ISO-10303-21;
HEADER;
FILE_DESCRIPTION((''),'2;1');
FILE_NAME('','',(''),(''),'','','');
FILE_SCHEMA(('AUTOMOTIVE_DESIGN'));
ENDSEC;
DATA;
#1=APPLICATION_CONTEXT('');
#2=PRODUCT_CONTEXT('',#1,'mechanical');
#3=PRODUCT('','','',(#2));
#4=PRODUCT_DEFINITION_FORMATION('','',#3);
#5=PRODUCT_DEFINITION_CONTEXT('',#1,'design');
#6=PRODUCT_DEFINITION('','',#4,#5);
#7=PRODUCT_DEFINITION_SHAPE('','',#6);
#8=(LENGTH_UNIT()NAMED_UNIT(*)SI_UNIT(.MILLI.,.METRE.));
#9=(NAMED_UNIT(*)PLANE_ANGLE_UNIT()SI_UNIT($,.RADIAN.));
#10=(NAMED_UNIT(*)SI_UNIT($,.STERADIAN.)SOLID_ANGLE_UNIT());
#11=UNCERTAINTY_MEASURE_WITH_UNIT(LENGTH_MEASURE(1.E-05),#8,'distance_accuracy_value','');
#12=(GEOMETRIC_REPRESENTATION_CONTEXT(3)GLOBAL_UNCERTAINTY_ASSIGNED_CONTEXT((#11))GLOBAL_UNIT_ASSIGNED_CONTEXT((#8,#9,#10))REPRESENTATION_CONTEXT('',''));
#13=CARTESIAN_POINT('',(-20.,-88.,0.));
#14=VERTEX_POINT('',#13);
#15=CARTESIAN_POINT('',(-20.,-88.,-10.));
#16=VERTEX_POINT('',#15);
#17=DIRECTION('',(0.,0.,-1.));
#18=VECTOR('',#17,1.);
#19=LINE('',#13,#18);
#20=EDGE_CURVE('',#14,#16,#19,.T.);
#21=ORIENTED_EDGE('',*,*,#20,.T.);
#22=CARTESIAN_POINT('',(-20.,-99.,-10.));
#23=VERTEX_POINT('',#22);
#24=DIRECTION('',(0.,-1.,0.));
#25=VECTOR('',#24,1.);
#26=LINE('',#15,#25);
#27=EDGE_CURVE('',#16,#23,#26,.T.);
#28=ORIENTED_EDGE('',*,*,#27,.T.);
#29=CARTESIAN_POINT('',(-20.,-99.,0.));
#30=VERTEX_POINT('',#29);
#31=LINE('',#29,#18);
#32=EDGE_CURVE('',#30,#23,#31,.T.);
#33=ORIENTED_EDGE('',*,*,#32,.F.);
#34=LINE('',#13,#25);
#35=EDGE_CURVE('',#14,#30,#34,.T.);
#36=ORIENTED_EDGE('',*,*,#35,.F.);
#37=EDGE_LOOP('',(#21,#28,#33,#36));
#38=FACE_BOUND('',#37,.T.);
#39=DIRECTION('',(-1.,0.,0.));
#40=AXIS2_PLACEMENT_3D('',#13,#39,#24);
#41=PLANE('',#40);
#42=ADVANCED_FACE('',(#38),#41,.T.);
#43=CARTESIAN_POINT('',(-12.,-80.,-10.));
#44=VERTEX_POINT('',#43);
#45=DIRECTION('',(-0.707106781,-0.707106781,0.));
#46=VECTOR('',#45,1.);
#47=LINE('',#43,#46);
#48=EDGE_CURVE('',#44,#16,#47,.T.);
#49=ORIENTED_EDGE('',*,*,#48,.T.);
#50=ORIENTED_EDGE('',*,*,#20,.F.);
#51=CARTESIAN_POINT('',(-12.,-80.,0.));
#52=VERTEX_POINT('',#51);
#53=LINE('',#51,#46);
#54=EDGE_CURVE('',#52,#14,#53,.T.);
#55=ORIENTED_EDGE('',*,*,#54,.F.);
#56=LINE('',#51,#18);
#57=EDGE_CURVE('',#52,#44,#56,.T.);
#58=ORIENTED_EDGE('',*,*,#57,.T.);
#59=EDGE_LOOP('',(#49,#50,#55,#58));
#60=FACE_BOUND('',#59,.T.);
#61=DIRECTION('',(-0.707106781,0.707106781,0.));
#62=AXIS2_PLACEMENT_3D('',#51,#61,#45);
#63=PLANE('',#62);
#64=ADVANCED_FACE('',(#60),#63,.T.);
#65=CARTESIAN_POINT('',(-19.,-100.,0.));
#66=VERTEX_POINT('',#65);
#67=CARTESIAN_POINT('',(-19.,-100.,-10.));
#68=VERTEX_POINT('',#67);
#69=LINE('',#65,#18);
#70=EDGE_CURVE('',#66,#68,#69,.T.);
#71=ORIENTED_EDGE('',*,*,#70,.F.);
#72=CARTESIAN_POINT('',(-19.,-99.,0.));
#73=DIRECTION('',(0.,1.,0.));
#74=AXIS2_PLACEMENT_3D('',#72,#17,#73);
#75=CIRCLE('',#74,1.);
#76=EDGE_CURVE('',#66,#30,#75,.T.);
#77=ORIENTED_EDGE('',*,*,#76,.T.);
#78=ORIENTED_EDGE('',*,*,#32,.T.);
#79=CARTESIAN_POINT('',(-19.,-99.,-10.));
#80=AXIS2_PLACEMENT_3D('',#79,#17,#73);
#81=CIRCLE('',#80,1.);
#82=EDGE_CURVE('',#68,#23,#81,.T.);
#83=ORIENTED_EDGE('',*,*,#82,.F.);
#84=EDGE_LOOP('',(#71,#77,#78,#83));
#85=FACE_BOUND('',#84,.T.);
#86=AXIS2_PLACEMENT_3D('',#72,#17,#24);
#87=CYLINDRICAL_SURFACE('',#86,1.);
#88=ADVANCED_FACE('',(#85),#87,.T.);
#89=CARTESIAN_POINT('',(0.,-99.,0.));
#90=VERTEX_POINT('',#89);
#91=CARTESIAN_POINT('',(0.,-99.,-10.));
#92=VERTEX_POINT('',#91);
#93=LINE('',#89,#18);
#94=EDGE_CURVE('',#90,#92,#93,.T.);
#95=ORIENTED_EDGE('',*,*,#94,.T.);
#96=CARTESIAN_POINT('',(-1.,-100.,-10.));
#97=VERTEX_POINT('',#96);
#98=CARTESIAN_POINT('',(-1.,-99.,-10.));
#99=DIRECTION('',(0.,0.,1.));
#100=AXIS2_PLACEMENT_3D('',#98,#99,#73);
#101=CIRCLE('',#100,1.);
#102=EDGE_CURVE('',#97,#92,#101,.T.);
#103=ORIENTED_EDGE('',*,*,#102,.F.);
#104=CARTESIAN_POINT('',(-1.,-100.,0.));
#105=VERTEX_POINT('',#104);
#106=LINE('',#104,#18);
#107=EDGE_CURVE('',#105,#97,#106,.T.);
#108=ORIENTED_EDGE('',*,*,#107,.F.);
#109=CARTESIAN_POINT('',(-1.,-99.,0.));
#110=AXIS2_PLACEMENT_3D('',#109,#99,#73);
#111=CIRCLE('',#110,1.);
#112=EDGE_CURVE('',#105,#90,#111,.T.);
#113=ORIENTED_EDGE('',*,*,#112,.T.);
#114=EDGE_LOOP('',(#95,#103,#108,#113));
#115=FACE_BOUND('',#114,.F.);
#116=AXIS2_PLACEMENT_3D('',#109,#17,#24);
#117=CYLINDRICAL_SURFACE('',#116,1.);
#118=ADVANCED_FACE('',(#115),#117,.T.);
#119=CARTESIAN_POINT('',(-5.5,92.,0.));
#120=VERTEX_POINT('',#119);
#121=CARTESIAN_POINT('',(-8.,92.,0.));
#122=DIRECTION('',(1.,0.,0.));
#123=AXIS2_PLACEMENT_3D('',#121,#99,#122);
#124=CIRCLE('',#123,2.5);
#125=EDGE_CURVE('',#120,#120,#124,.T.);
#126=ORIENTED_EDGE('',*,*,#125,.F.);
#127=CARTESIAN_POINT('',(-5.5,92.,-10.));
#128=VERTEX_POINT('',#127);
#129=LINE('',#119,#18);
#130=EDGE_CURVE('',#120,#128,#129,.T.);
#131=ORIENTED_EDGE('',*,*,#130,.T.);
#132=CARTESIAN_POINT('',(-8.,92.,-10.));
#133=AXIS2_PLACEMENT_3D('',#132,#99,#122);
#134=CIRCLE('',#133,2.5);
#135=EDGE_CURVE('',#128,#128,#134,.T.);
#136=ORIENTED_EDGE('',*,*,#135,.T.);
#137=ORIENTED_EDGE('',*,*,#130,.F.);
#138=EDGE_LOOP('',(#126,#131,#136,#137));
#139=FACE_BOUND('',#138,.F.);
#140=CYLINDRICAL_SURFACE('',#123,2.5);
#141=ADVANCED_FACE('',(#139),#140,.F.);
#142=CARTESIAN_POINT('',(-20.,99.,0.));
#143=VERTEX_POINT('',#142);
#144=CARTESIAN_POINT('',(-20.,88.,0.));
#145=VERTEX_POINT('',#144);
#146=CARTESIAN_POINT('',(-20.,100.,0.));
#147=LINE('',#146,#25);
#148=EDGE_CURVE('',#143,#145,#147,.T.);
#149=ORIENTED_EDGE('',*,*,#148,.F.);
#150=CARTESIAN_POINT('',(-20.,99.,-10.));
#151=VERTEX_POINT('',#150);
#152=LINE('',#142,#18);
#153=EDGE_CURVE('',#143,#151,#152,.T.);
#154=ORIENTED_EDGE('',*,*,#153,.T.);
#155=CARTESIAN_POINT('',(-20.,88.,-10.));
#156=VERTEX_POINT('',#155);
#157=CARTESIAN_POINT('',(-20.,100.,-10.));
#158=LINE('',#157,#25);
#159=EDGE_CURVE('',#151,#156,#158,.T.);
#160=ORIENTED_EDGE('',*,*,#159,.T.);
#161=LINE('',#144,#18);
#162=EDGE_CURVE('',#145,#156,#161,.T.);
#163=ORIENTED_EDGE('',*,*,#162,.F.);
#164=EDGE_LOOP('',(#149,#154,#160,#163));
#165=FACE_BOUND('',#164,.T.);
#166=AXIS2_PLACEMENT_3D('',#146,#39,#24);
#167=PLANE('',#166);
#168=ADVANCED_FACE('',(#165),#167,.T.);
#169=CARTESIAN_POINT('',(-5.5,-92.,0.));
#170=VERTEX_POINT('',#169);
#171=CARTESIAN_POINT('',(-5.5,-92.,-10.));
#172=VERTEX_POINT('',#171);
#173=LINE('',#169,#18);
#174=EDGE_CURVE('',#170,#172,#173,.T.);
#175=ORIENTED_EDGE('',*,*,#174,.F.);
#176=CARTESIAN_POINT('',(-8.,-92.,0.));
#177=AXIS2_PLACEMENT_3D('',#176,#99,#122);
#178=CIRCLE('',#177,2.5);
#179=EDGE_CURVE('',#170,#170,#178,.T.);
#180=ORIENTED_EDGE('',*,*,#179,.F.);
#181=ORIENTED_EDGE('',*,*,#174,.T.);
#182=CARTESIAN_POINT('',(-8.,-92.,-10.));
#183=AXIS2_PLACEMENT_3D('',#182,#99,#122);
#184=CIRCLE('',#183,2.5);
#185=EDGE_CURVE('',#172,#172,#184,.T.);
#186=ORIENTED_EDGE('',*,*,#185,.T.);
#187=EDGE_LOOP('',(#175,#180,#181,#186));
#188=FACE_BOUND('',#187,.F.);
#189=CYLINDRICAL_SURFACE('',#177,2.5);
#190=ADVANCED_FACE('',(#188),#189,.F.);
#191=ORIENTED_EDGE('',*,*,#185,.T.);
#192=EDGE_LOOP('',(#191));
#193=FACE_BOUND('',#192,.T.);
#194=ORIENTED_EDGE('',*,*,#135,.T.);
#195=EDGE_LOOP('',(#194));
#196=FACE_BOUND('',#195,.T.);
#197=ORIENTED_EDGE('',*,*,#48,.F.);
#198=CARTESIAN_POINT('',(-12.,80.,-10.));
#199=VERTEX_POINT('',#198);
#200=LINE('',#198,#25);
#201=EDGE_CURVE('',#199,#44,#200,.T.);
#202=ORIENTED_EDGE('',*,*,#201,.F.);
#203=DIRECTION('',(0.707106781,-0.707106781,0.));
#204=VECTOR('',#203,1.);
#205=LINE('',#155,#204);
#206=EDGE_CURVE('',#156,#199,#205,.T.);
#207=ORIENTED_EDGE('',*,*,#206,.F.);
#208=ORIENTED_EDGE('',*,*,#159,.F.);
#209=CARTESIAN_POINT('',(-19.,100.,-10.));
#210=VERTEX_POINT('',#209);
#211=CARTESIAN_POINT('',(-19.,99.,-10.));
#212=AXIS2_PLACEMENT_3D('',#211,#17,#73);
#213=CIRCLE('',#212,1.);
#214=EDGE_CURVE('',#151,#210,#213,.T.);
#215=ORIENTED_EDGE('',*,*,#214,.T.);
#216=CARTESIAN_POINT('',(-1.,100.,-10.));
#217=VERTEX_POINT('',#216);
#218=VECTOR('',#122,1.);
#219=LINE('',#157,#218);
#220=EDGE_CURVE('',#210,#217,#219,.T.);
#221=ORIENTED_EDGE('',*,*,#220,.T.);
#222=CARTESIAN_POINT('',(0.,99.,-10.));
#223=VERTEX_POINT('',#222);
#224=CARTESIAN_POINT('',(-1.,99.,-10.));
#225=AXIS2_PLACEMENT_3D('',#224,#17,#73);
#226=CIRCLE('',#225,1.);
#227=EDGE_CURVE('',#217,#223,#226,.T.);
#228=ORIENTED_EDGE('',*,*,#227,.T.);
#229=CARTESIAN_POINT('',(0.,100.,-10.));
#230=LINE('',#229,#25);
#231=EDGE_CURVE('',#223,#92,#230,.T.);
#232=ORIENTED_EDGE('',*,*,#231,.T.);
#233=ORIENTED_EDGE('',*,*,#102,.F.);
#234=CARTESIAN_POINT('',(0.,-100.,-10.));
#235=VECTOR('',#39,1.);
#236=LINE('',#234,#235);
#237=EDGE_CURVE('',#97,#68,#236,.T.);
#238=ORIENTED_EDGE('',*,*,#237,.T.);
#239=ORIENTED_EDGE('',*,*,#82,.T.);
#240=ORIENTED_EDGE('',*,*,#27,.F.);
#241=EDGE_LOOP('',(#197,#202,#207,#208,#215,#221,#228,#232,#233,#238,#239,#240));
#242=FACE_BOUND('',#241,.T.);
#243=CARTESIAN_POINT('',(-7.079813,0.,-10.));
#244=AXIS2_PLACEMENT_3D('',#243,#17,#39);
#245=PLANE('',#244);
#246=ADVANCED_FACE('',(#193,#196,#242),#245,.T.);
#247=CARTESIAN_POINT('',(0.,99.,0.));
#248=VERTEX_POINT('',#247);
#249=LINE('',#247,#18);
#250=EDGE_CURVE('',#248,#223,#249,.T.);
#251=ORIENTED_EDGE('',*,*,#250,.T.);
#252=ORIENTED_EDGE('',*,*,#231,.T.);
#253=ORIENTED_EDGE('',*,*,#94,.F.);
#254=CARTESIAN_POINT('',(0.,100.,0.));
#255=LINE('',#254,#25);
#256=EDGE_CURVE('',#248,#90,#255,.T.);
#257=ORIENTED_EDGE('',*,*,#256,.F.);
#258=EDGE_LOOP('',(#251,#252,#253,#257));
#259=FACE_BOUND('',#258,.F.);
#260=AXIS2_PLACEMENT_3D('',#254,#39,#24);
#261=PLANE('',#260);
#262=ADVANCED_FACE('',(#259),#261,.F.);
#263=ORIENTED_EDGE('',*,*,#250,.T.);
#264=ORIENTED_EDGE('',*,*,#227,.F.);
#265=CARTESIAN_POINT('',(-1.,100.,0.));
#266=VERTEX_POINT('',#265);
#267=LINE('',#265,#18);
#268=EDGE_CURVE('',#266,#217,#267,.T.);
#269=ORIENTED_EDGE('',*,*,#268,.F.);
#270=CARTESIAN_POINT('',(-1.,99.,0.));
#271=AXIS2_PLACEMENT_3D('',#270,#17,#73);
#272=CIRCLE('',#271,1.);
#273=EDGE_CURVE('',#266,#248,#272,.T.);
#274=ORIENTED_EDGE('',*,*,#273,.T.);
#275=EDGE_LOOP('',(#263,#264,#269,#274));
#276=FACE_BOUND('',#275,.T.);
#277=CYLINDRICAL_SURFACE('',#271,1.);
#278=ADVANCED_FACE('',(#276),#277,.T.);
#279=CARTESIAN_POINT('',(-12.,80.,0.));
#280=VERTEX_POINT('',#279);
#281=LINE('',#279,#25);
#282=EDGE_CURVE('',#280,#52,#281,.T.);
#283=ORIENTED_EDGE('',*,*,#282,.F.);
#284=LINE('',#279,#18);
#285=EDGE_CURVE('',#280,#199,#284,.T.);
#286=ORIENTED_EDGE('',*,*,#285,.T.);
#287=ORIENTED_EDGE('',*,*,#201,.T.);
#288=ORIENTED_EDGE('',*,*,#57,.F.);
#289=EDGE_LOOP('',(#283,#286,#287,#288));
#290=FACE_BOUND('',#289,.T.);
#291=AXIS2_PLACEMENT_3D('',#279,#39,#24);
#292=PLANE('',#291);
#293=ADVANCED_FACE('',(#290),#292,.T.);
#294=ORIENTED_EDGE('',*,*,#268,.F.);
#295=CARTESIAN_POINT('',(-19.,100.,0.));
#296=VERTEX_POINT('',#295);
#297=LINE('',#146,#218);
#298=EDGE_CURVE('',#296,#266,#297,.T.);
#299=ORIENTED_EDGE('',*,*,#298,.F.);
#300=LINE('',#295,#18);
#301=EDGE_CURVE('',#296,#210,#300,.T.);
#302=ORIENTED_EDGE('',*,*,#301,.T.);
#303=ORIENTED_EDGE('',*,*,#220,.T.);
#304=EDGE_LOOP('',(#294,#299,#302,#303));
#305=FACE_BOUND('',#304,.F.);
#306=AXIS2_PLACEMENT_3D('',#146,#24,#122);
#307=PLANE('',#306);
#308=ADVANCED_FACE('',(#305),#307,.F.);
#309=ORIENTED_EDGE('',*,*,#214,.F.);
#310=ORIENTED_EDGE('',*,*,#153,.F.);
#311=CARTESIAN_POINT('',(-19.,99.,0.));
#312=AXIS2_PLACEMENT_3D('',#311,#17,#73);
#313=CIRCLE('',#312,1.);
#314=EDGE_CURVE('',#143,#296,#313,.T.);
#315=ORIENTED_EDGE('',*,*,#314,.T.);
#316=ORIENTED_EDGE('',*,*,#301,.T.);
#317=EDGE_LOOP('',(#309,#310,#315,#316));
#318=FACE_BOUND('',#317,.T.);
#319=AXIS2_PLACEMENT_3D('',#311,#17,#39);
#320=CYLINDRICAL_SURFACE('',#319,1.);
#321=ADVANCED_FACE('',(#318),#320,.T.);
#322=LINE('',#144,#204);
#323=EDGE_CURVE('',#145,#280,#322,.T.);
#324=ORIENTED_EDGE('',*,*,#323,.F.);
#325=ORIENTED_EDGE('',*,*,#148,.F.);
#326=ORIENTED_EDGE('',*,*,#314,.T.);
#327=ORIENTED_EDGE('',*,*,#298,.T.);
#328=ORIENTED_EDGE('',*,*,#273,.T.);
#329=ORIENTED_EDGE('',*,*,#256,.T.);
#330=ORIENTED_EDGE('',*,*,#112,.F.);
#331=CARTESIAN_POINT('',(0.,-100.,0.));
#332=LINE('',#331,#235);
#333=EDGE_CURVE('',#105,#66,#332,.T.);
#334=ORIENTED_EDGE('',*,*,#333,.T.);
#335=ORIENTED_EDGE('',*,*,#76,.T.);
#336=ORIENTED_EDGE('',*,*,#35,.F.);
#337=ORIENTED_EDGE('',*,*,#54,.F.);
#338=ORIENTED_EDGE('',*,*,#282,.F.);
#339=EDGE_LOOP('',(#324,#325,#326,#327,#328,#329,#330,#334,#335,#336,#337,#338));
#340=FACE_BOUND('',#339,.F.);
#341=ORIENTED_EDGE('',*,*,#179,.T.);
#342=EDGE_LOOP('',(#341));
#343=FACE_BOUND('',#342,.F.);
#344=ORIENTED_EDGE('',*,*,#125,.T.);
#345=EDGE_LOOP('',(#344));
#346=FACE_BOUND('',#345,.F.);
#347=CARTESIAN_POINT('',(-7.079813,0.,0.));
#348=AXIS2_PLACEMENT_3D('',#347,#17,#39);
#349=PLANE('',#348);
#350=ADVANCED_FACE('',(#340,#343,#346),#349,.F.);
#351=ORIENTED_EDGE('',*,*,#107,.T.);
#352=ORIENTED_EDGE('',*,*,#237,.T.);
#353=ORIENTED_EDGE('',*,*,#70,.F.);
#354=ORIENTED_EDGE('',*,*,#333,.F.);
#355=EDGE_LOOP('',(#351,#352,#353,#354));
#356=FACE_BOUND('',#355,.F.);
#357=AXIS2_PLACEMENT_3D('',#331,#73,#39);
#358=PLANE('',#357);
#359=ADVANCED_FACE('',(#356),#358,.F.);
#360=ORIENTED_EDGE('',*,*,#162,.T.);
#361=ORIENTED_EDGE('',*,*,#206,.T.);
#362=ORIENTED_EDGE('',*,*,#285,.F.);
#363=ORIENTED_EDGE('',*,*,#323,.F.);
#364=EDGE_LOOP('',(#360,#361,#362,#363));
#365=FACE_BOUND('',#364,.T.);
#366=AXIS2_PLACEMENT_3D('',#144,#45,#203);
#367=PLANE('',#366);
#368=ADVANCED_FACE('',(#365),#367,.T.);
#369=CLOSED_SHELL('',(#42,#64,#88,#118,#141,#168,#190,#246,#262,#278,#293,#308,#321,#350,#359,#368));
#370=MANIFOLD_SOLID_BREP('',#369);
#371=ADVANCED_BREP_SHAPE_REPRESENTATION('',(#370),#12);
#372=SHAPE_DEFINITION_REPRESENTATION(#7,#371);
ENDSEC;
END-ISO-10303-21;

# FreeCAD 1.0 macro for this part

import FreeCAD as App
import Part
import Sketcher
Q = App.Units.Quantity


def edges_at(feature, points):
    """Names of the edges that pass closest to the given points."""
    edges = feature.Shape.Edges
    near = lambda p: min(range(len(edges)), key=lambda i: edges[i].distToShape(Part.Vertex(*p))[0])
    return sorted({f"Edge{near(p) + 1}" for p in points})


def add_polygon(sketch, points):
    """Adds a closed chain of lines whose ends are joined by coincident constraints."""
    first, n = sketch.GeometryCount, len(points)
    for a, b in zip(points, points[1:] + points[:1]):
        sketch.addGeometry(Part.LineSegment(App.Vector(*a, 0), App.Vector(*b, 0)), False)
    for i in range(n):
        sketch.addConstraint(Sketcher.Constraint("Coincident", first + i, 2, first + (i + 1) % n, 1))

doc = App.newDocument("Part")
body = doc.addObject("PartDesign::Body", "Body")

# Sketch on XY plane
sketch1 = body.newObject("Sketcher::SketchObject", "Sketch")
sketch1.AttachmentSupport = (doc.getObject("XY_Plane"), [""])
sketch1.MapMode = "FlatFace"
add_polygon(sketch1, [(-20, -100), (0, -100), (0, 100), (-20, 100), (-20, 88), (-12, 80), (-12, -80), (-20, -88)])  # lines 0-7
sketch1.addGeometry(Part.Circle(App.Vector(-8, -92, 0), App.Vector(0, 0, 1), 2.5), False)  # 8
sketch1.addGeometry(Part.Circle(App.Vector(-8, 92, 0), App.Vector(0, 0, 1), 2.5), False)  # 9
sketch1.addConstraint(Sketcher.Constraint("Horizontal", 0))
sketch1.addConstraint(Sketcher.Constraint("Vertical", 1))
sketch1.addConstraint(Sketcher.Constraint("Horizontal", 2))
sketch1.addConstraint(Sketcher.Constraint("Vertical", 3))
sketch1.addConstraint(Sketcher.Constraint("Vertical", 5))
sketch1.addConstraint(Sketcher.Constraint("Vertical", 7))
sketch1.addConstraint(Sketcher.Constraint("Equal", 8, 9))
sketch1.addConstraint(Sketcher.Constraint("Symmetric", 0, 2, 1, 2, -1, 1))
sketch1.addConstraint(Sketcher.Constraint("Symmetric", 8, 3, 9, 3, -1))
sketch1.addConstraint(Sketcher.Constraint("Symmetric", 3, 2, 6, 2, -1))
sketch1.addConstraint(Sketcher.Constraint("Perpendicular", 4, 6))
sketch1.addConstraint(Sketcher.Constraint("Equal", 4, 6))
sketch1.addConstraint(Sketcher.Constraint("DistanceX", 0, 1, 0, 2, Q("20 mm")))
sketch1.addConstraint(Sketcher.Constraint("Diameter", 8, Q("5 mm")))
sketch1.addConstraint(Sketcher.Constraint("DistanceX", 8, 3, -1, 1, Q("8 mm")))
sketch1.addConstraint(Sketcher.Constraint("DistanceY", 0, 2, 8, 3, Q("8 mm")))
sketch1.addConstraint(Sketcher.Constraint("DistanceX", 3, 2, 4, 2, Q("8 mm")))
sketch1.addConstraint(Sketcher.Constraint("DistanceY", 4, 2, 2, 2, Q("20 mm")))
sketch1.addConstraint(Sketcher.Constraint("DistanceY", 1, 1, 1, 2, Q("200 mm")))
pad1 = body.newObject("PartDesign::Pad", "Pad")
pad1.Profile = sketch1
pad1.Length = 10
pad1.Reversed = True
doc.recompute()

fillet = body.newObject("PartDesign::Fillet", "Fillet")
fillet.Base = (pad1, edges_at(pad1, [
    (0, -100, -5),
    (-20, -100, -5),
    (0, 100, -5),
    (-20, 100, -5),
]))
fillet.Radius = 1

doc.recompute()
